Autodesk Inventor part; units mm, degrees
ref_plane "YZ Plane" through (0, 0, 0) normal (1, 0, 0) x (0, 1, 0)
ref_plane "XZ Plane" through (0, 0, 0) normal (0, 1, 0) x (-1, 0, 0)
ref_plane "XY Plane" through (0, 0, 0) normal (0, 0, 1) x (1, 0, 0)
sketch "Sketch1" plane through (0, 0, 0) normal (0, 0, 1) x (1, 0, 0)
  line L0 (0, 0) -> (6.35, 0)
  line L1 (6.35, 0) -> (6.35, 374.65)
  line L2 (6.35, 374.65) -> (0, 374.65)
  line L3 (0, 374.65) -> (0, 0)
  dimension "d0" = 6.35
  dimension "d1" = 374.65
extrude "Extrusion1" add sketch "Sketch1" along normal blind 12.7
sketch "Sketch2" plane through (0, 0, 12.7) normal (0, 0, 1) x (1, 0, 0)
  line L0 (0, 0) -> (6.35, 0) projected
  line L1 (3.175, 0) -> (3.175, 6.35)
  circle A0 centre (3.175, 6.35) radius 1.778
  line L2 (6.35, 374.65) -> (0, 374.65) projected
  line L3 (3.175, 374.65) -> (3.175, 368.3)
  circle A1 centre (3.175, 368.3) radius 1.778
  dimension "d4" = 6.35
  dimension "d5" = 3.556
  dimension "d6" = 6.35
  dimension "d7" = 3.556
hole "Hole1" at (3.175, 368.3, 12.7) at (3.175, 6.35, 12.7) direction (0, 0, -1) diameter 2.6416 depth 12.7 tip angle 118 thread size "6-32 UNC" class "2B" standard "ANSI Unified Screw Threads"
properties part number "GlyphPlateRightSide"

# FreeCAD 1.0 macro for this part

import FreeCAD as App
import Part
import Sketcher
from FreeCAD import Vector
Q = App.Units.Quantity


def add_polygon(sketch, points):
    """Adds a closed chain of lines whose ends are joined by coincident constraints."""
    first, n = sketch.GeometryCount, len(points)
    for a, b in zip(points, points[1:] + points[:1]):
        sketch.addGeometry(Part.LineSegment(App.Vector(*a, 0), App.Vector(*b, 0)), False)
    for i in range(n):
        sketch.addConstraint(Sketcher.Constraint("Coincident", first + i, 2, first + (i + 1) % n, 1))

doc = App.newDocument("Part")
params = doc.addObject("Spreadsheet::Sheet", "Params")
for row, (alias, value) in enumerate([
    ("sketch1_width", "0.25 in"),
    ("sketch1_height", "14.75 in"),
    ("pad1_length", "0.5 in"),
    ("sketch2_diameter", "0.104 in"),
    ("hole_diameter", "0.104 in"),
    ("hole_depth", "0.5 in"),
], start=1):
    params.set(f"A{row}", alias)
    params.set(f"B{row}", "=" + value)
    params.setAlias(f"B{row}", alias)

body = doc.addObject("PartDesign::Body", "Body")

# Sketch on XY plane
sketch1 = body.newObject("Sketcher::SketchObject", "Sketch")
sketch1.AttachmentSupport = (doc.getObject("XY_Plane"), [""])
sketch1.MapMode = "FlatFace"
add_polygon(sketch1, [(0, 375), (0, 0), (6, 0), (6, 375)])  # lines 0-3
sketch1.addConstraint(Sketcher.Constraint("Vertical", 0))
sketch1.addConstraint(Sketcher.Constraint("Horizontal", 1))
sketch1.addConstraint(Sketcher.Constraint("Vertical", 2))
sketch1.addConstraint(Sketcher.Constraint("Horizontal", 3))
sketch1.addConstraint(Sketcher.Constraint("Coincident", 0, 2, -1, 1))
sketch1.addConstraint(Sketcher.Constraint("DistanceX", 1, 1, 1, 2, Q("0.25 in")))
sketch1.addConstraint(Sketcher.Constraint("DistanceY", 0, 2, 0, 1, Q("14.75 in")))
sketch1.setExpression("Constraints[9]", "Params.sketch1_width")
sketch1.setExpression("Constraints[10]", "Params.sketch1_height")
pad1 = body.newObject("PartDesign::Pad", "Pad")
pad1.Profile = sketch1
pad1.setExpression("Length", "Params.pad1_length")

# Sketch on XY plane
sketch2 = body.newObject("Sketcher::SketchObject", "Sketch001")
sketch2.AttachmentSupport = (doc.getObject("XY_Plane"), [""])
sketch2.MapMode = "FlatFace"
sketch2.AttachmentOffset = App.Placement(Vector(0, 0, 0.5 * 25.4), App.Rotation())
sketch2.addGeometry(Part.Circle(Vector(3.2, 368.3, 0), Vector(0, 0, 1), 1.3), False)
sketch2.addGeometry(Part.Circle(Vector(3.2, 6.3, 0), Vector(0, 0, 1), 1.3), False)
sketch2.addConstraint(Sketcher.Constraint("Equal", 0, 1))
sketch2.addConstraint(Sketcher.Constraint("Vertical", 0, 3, 1, 3))
sketch2.addConstraint(Sketcher.Constraint("Diameter", 0, Q("0.104 in")))
sketch2.addConstraint(Sketcher.Constraint("DistanceY", -1, 1, 0, 3, Q("14.5 in")))
sketch2.addConstraint(Sketcher.Constraint("DistanceY", -1, 1, 1, 3, Q("0.25 in")))
sketch2.addConstraint(Sketcher.Constraint("DistanceX", -1, 1, 0, 3, Q("0.125 in")))
sketch2.setExpression("Constraints[2]", "Params.sketch2_diameter")
doc.recompute()
hole = body.newObject("PartDesign::Hole", "Hole")
hole.Profile = sketch2
hole.ThreadType = "None"
hole.setExpression("Diameter", "Params.hole_diameter")
hole.DepthType = "Dimension"
hole.setExpression("Depth", "Params.hole_depth")
hole.DrillPoint = "Angled"
hole.DrillPointAngle = 118

doc.recompute()
